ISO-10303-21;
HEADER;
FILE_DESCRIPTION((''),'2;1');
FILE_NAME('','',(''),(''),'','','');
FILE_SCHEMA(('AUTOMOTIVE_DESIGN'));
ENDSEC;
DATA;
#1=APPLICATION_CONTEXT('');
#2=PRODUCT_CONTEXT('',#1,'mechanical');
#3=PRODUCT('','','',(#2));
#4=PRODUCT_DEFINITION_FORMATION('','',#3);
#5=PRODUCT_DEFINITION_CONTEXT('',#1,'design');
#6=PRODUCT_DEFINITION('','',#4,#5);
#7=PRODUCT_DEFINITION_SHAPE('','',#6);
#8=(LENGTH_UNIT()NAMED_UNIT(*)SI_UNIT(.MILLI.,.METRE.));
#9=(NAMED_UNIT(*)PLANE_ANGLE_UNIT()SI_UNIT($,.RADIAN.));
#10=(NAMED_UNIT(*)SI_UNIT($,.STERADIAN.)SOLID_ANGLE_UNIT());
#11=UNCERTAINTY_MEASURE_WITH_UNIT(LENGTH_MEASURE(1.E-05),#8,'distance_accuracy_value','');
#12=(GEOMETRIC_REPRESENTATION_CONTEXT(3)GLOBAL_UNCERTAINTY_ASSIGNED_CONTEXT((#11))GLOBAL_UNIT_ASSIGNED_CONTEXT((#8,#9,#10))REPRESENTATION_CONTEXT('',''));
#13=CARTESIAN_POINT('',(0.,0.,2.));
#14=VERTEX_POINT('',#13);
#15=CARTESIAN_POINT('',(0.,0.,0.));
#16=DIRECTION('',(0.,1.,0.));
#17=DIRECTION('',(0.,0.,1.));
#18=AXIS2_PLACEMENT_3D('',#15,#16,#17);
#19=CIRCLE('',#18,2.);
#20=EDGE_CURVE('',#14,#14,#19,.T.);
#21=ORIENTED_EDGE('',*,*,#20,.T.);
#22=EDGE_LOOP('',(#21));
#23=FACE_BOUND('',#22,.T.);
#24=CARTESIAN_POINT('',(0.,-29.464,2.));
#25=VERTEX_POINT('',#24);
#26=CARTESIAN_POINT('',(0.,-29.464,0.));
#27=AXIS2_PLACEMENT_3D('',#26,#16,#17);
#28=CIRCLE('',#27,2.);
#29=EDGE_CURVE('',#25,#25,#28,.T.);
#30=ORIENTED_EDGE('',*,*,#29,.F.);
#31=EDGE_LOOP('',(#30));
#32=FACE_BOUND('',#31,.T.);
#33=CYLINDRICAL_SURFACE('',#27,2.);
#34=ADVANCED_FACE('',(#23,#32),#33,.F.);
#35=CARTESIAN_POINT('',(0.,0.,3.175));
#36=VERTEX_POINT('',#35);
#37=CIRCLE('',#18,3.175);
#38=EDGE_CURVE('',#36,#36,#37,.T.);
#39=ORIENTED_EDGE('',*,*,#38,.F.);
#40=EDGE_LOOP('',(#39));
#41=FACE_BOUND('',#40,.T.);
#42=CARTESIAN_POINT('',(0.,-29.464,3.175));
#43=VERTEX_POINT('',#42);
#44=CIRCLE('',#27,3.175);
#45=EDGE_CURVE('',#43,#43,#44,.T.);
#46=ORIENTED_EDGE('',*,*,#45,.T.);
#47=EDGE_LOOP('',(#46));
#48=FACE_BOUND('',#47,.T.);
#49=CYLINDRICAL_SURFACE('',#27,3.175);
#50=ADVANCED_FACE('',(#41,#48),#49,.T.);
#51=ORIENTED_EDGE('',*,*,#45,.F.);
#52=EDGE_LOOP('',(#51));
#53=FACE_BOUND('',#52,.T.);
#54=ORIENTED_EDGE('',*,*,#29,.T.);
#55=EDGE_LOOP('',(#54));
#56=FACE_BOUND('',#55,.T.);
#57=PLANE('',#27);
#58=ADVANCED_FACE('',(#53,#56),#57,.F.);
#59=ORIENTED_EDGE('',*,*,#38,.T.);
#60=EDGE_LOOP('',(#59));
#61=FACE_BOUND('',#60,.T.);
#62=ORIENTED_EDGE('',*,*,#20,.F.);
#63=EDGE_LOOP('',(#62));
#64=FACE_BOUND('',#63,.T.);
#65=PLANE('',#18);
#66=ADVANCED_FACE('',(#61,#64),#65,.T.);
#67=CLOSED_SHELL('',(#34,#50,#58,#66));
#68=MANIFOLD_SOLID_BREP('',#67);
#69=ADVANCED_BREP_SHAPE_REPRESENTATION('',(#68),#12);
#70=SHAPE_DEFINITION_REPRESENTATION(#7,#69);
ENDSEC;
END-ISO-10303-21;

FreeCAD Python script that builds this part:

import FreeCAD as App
import Part
import Sketcher

V = App.Vector
Q = App.Units.Quantity

doc = App.newDocument("Part")
body = doc.addObject("PartDesign::Body", "Body")

sketch1 = body.newObject("Sketcher::SketchObject", "Sketch")
sketch1.AttachmentSupport = (doc.getObject("XZ_Plane"), [""])
sketch1.MapMode = "FlatFace"
sketch1.addGeometry(Part.Circle(V(0, 0, 0), V(0, 0, 1), 3.2), False)
sketch1.addGeometry(Part.Circle(V(0, 0, 0), V(0, 0, 1), 2), False)
sketch1.addConstraint(Sketcher.Constraint("Coincident", 0, 3, -1, 1))
sketch1.addConstraint(Sketcher.Constraint("Coincident", 1, 3, -1, 1))
sketch1.addConstraint(Sketcher.Constraint("Diameter", 0, Q("0.25 in")))
sketch1.addConstraint(Sketcher.Constraint("Diameter", 1, Q("4 mm")))
pad1 = body.newObject("PartDesign::Pad", "Pad")
pad1.Profile = sketch1
pad1.Length = Q("1.16 in")

doc.recompute()
